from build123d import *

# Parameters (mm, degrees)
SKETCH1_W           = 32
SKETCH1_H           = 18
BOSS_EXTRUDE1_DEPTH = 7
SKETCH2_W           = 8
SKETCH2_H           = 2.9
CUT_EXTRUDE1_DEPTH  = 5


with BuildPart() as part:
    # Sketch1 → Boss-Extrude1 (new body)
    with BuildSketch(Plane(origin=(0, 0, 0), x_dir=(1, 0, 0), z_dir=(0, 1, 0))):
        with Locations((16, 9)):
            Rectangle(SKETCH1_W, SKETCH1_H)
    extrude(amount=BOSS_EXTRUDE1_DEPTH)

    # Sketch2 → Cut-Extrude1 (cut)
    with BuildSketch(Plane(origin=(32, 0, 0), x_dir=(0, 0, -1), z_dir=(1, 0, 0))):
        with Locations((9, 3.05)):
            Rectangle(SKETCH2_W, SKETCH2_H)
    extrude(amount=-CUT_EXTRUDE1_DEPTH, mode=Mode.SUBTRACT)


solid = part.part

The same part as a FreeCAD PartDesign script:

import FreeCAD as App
import Part
import Sketcher


def add_polygon(sketch, points):
    """Adds a closed chain of lines whose ends are joined by coincident constraints."""
    first, n = sketch.GeometryCount, len(points)
    for a, b in zip(points, points[1:] + points[:1]):
        sketch.addGeometry(Part.LineSegment(App.Vector(*a, 0), App.Vector(*b, 0)), False)
    for i in range(n):
        sketch.addConstraint(Sketcher.Constraint("Coincident", first + i, 2, first + (i + 1) % n, 1))

doc = App.newDocument("Part")
params = doc.addObject("Spreadsheet::Sheet", "Params")
for row, (alias, value) in enumerate([
    ("sketch1_width", "32 mm"),
    ("sketch1_height", "18 mm"),
    ("pad1_length", "7 mm"),
    ("sketch2_height", "8 mm"),
    ("sketch2_width", "2.9 mm"),
    ("pocket1_length", "5 mm"),
], start=1):
    params.set(f"A{row}", alias)
    params.set(f"B{row}", "=" + value)
    params.setAlias(f"B{row}", alias)

body = doc.addObject("PartDesign::Body", "Body")

sketch1 = body.newObject("Sketcher::SketchObject", "Sketch")
sketch1.AttachmentSupport = (doc.getObject("XZ_Plane"), [""])
sketch1.MapMode = "FlatFace"
add_polygon(sketch1, [(0, -18), (0, 0), (32, 0), (32, -18)])
sketch1.addConstraint([
    Sketcher.Constraint("Vertical", 0),
    Sketcher.Constraint("Horizontal", 1),
    Sketcher.Constraint("Vertical", 2),
    Sketcher.Constraint("Horizontal", 3),
    Sketcher.Constraint("Coincident", 0, 2, -1, 1),
    Sketcher.Constraint("DistanceX", 1, 1, 1, 2, 32.0),
    Sketcher.Constraint("DistanceY", 0, 1, 0, 2, 18.0),
])
sketch1.setExpression("Constraints[9]", "Params.sketch1_width")
sketch1.setExpression("Constraints[10]", "Params.sketch1_height")
pad1 = body.newObject("PartDesign::Pad", "Pad")
pad1.Profile = sketch1
pad1.setExpression("Length", "Params.pad1_length")
pad1.Reversed = True

sketch2 = body.newObject("Sketcher::SketchObject", "Sketch001")
sketch2.AttachmentSupport = (doc.getObject("YZ_Plane"), [""])
sketch2.MapMode = "FlatFace"
sketch2.AttachmentOffset = App.Placement(App.Vector(0, 0, 32), App.Rotation())
add_polygon(sketch2, [(4.5, -5), (1.6, -5), (1.6, -13), (4.5, -13)])
sketch2.addConstraint([
    Sketcher.Constraint("Horizontal", 0),
    Sketcher.Constraint("Vertical", 1),
    Sketcher.Constraint("Horizontal", 2),
    Sketcher.Constraint("Vertical", 3),
    Sketcher.Constraint("DistanceY", 1, 2, 1, 1, 8.0),
    Sketcher.Constraint("DistanceX", 0, 2, 0, 1, 2.9),
    Sketcher.Constraint("DistanceY", 0, 2, -1, 1, 5.0),
    Sketcher.Constraint("DistanceX", -1, 1, 0, 2, 1.6),
])
sketch2.setExpression("Constraints[8]", "Params.sketch2_height")
sketch2.setExpression("Constraints[9]", "Params.sketch2_width")
pocket1 = body.newObject("PartDesign::Pocket", "Pocket")
pocket1.Profile = sketch2
pocket1.setExpression("Length", "Params.pocket1_length")

doc.recompute()
